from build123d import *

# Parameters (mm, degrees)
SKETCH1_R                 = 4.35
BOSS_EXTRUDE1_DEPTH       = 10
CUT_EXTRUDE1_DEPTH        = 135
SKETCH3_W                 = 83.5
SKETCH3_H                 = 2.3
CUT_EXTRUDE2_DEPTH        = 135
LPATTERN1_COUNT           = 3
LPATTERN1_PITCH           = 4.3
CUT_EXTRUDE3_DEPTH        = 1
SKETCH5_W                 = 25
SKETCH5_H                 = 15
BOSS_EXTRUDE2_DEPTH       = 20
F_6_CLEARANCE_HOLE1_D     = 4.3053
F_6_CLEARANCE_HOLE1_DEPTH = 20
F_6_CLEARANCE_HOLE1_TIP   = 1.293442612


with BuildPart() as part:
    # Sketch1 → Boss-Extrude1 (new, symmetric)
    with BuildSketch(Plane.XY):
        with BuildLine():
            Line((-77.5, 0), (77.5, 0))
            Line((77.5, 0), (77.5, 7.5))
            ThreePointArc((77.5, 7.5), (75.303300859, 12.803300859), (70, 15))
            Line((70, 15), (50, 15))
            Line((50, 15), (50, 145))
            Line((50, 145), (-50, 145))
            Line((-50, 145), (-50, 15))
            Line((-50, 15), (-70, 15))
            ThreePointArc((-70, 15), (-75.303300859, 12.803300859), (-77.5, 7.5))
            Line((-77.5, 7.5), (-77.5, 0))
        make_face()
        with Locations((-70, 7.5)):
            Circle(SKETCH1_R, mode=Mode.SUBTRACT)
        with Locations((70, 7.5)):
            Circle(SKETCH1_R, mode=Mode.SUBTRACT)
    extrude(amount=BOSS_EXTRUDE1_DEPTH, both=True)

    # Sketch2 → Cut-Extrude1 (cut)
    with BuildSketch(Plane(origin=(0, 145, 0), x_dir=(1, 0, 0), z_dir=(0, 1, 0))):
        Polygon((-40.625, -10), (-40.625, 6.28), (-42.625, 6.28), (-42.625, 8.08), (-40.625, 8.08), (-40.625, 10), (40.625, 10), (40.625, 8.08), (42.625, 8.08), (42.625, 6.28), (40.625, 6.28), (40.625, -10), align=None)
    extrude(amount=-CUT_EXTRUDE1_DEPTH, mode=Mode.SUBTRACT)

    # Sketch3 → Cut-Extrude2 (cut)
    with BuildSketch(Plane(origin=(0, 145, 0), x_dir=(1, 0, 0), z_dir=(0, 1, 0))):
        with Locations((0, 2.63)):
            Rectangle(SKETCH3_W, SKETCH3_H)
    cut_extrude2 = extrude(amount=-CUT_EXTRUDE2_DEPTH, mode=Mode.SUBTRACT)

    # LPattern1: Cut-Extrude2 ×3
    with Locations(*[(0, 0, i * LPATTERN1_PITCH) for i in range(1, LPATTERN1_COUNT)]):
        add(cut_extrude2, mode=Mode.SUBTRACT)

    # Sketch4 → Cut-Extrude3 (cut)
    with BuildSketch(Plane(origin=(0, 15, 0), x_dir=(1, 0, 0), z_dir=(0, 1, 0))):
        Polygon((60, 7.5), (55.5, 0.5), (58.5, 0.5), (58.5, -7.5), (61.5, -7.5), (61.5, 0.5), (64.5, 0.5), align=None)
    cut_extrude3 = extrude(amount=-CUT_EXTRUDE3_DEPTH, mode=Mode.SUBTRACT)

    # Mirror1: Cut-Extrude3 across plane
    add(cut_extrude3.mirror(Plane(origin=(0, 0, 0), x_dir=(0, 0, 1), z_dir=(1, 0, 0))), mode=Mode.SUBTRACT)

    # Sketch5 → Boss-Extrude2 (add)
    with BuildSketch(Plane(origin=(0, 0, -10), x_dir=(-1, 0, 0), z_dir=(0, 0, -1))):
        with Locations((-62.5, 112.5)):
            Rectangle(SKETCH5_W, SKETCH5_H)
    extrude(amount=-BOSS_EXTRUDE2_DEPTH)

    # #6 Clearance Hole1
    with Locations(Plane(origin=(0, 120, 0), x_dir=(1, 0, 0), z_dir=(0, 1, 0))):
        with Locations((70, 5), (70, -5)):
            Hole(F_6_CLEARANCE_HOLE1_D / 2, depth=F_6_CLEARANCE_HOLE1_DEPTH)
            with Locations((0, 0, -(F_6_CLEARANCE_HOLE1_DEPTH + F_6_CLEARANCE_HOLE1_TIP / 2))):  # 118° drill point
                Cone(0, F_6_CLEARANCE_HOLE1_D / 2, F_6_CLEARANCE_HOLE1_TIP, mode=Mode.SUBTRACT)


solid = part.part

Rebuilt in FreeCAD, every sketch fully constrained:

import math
import FreeCAD as App
import Part
import Sketcher
from FreeCAD import Vector


def add_polygon(sketch, points):
    """Adds a closed chain of lines whose ends are joined by coincident constraints."""
    first, n = sketch.GeometryCount, len(points)
    for a, b in zip(points, points[1:] + points[:1]):
        sketch.addGeometry(Part.LineSegment(App.Vector(*a, 0), App.Vector(*b, 0)), False)
    for i in range(n):
        sketch.addConstraint(Sketcher.Constraint("Coincident", first + i, 2, first + (i + 1) % n, 1))

doc = App.newDocument("Part")
params = doc.addObject("Spreadsheet::Sheet", "Params")
for row, (alias, value) in enumerate([
    ("sketch1_diameter", "8.7 mm"),
    ("sketch1_radius", "7.5 mm"),
    ("sketch1_width", "155 mm"),
    ("sketch1_width2", "20 mm"),
    ("sketch1_height", "130 mm"),
    ("pad1_length", "20 mm"),
    ("sketch2_width", "2 mm"),
    ("sketch2_height", "1.8 mm"),
    ("sketch2_width2", "81.25 mm"),
    ("sketch2_height2", "16.28 mm"),
    ("pocket1_length", "135 mm"),
    ("sketch3_width", "83.5 mm"),
    ("sketch3_height", "2.3 mm"),
    ("pocket2_length", "135 mm"),
    ("linearpattern_pitch", "4.3 mm"),
    ("sketch4_width", "3 mm"),
    ("sketch4_height", "8 mm"),
    ("pocket3_length", "1 mm"),
    ("sketch5_width", "25 mm"),
    ("sketch5_height", "15 mm"),
    ("pad2_length", "20 mm"),
    ("hole_diameter", "4.3053 mm"),
    ("hole_depth", "20 mm"),
], start=1):
    params.set(f"A{row}", alias)
    params.set(f"B{row}", "=" + value)
    params.setAlias(f"B{row}", alias)

body = doc.addObject("PartDesign::Body", "Body")

sketch1 = body.newObject("Sketcher::SketchObject", "Sketch")
sketch1.AttachmentSupport = (doc.getObject("XY_Plane"), [""])
sketch1.MapMode = "FlatFace"
sketch1.addGeometry([
    Part.LineSegment(Vector(-77.5, 0, 0), Vector(77.5, 0, 0)),
    Part.LineSegment(Vector(77.5, 0, 0), Vector(77.5, 7.5, 0)),
    Part.ArcOfCircle(Part.Circle(Vector(70, 7.5, 0), Vector(0, 0, 1), 7.5), math.radians(0), math.radians(90)),
    Part.LineSegment(Vector(70, 15, 0), Vector(50, 15, 0)),
    Part.LineSegment(Vector(50, 15, 0), Vector(50, 145, 0)),
    Part.LineSegment(Vector(50, 145, 0), Vector(-50, 145, 0)),
    Part.LineSegment(Vector(-50, 145, 0), Vector(-50, 15, 0)),
    Part.LineSegment(Vector(-50, 15, 0), Vector(-70, 15, 0)),
    Part.ArcOfCircle(Part.Circle(Vector(-70, 7.5, 0), Vector(0, 0, 1), 7.5), math.radians(90), math.radians(180)),
    Part.LineSegment(Vector(-77.5, 7.5, 0), Vector(-77.5, 0, 0)),
    Part.Circle(Vector(-70, 7.5, 0), Vector(0, 0, 1), 4.3),
    Part.Circle(Vector(70, 7.5, 0), Vector(0, 0, 1), 4.3),
], False)
sketch1.addConstraint([
    Sketcher.Constraint("Coincident", 0, 2, 1, 1),
    Sketcher.Constraint("Tangent", 1, 2, 2, 1),
    Sketcher.Constraint("Tangent", 2, 2, 3, 1),
    Sketcher.Constraint("Coincident", 3, 2, 4, 1),
    Sketcher.Constraint("Coincident", 4, 2, 5, 1),
    Sketcher.Constraint("Coincident", 5, 2, 6, 1),
    Sketcher.Constraint("Coincident", 6, 2, 7, 1),
    Sketcher.Constraint("Tangent", 7, 2, 8, 1),
    Sketcher.Constraint("Tangent", 8, 2, 9, 1),
    Sketcher.Constraint("Coincident", 9, 2, 0, 1),
    Sketcher.Constraint("Horizontal", 0),
    Sketcher.Constraint("Vertical", 1),
    Sketcher.Constraint("Horizontal", 3),
    Sketcher.Constraint("Vertical", 4),
    Sketcher.Constraint("Horizontal", 5),
    Sketcher.Constraint("Vertical", 6),
    Sketcher.Constraint("Horizontal", 7),
    Sketcher.Constraint("Vertical", 9),
    Sketcher.Constraint("Coincident", 10, 3, 8, 3),
    Sketcher.Constraint("Coincident", 11, 3, 2, 3),
    Sketcher.Constraint("Equal", 2, 8),
    Sketcher.Constraint("Equal", 10, 11),
    Sketcher.Constraint("Symmetric", 0, 2, 9, 2, -1, 1),
    Sketcher.Constraint("Symmetric", 3, 2, 6, 2, -2),
    Sketcher.Constraint("Diameter", 10, 8.7),
    Sketcher.Constraint("Radius", 2, 7.5),
    Sketcher.Constraint("DistanceX", 0, 1, 0, 2, 155.0),
    Sketcher.Constraint("DistanceX", 3, 2, 3, 1, 20.0),
    Sketcher.Constraint("DistanceY", 4, 1, 4, 2, 130.0),
    Sketcher.Constraint("DistanceY", 1, 1, 1, 2, 7.5),
])
sketch1.setExpression("Constraints[24]", "Params.sketch1_diameter")
sketch1.setExpression("Constraints[25]", "Params.sketch1_radius")
sketch1.setExpression("Constraints[26]", "Params.sketch1_width")
sketch1.setExpression("Constraints[27]", "Params.sketch1_width2")
sketch1.setExpression("Constraints[28]", "Params.sketch1_height")
pad1 = body.newObject("PartDesign::Pad", "Pad")
pad1.Profile = sketch1
pad1.setExpression("Length", "Params.pad1_length")
pad1.Midplane = True

sketch2 = body.newObject("Sketcher::SketchObject", "Sketch001")
sketch2.AttachmentSupport = (doc.getObject("XZ_Plane"), [""])
sketch2.MapMode = "FlatFace"
sketch2.AttachmentOffset = App.Placement(Vector(0, 0, -145), App.Rotation())
add_polygon(sketch2, [(-40.6, -6.3), (-40.6, 10), (40.6, 10), (40.6, -6.3), (42.6, -6.3), (42.6, -8.1), (40.6, -8.1), (40.6, -10), (-40.6, -10), (-40.6, -8.1), (-42.6, -8.1), (-42.6, -6.3)])
sketch2.addConstraint([
    Sketcher.Constraint("Vertical", 0),
    Sketcher.Constraint("Horizontal", 1),
    Sketcher.Constraint("Vertical", 2),
    Sketcher.Constraint("Horizontal", 3),
    Sketcher.Constraint("Vertical", 4),
    Sketcher.Constraint("Horizontal", 5),
    Sketcher.Constraint("Vertical", 6),
    Sketcher.Constraint("Horizontal", 7),
    Sketcher.Constraint("Vertical", 8),
    Sketcher.Constraint("Horizontal", 9),
    Sketcher.Constraint("Vertical", 10),
    Sketcher.Constraint("Horizontal", 11),
    Sketcher.Constraint("Symmetric", 0, 2, 6, 2, -1, 1),
    Sketcher.Constraint("Symmetric", 5, 2, 8, 2, -2),
    Sketcher.Constraint("Symmetric", 3, 2, 10, 2, -2),
    Sketcher.Constraint("Vertical", 2, 2, 5, 2),
    Sketcher.Constraint("DistanceX", 3, 1, 3, 2, 2.0),
    Sketcher.Constraint("DistanceY", 4, 2, 4, 1, 1.8),
    Sketcher.Constraint("DistanceY", -1, 1, 0, 2, 10.0),
    Sketcher.Constraint("DistanceX", 1, 1, 1, 2, 81.25),
    Sketcher.Constraint("DistanceY", 0, 1, 0, 2, 16.28),
])
sketch2.setExpression("Constraints[28]", "Params.sketch2_width")
sketch2.setExpression("Constraints[29]", "Params.sketch2_height")
sketch2.setExpression("Constraints[31]", "Params.sketch2_width2")
sketch2.setExpression("Constraints[32]", "Params.sketch2_height2")
pocket1 = body.newObject("PartDesign::Pocket", "Pocket")
pocket1.Profile = sketch2
pocket1.setExpression("Length", "Params.pocket1_length")
pocket1.Reversed = True

sketch3 = body.newObject("Sketcher::SketchObject", "Sketch002")
sketch3.AttachmentSupport = (doc.getObject("XZ_Plane"), [""])
sketch3.MapMode = "FlatFace"
sketch3.AttachmentOffset = App.Placement(Vector(0, 0, -145), App.Rotation())
add_polygon(sketch3, [(-41.8, -3.8), (-41.8, -1.5), (41.8, -1.5), (41.8, -3.8)])
sketch3.addConstraint([
    Sketcher.Constraint("Vertical", 0),
    Sketcher.Constraint("Horizontal", 1),
    Sketcher.Constraint("Vertical", 2),
    Sketcher.Constraint("Horizontal", 3),
    Sketcher.Constraint("DistanceX", 1, 1, 1, 2, 83.5),
    Sketcher.Constraint("DistanceY", 0, 1, 0, 2, 2.3),
    Sketcher.Constraint("DistanceX", 0, 2, -1, 1, 41.75),
    Sketcher.Constraint("DistanceY", 0, 2, -1, 1, 1.48),
])
sketch3.setExpression("Constraints[8]", "Params.sketch3_width")
sketch3.setExpression("Constraints[9]", "Params.sketch3_height")
pocket2 = body.newObject("PartDesign::Pocket", "Pocket001")
pocket2.Profile = sketch3
pocket2.setExpression("Length", "Params.pocket2_length")
pocket2.Reversed = True
doc.recompute()

linearpattern = body.newObject("PartDesign::LinearPattern", "LinearPattern")
linearpattern.Originals = [pocket2]
linearpattern.Direction = (doc.getObject("Z_Axis"), [""])
linearpattern.Mode = "offset"
linearpattern.setExpression("Offset", "Params.linearpattern_pitch")
linearpattern.Occurrences = 3
body.Tip = linearpattern

sketch4 = body.newObject("Sketcher::SketchObject", "Sketch003")
sketch4.AttachmentSupport = (doc.getObject("XZ_Plane"), [""])
sketch4.MapMode = "FlatFace"
sketch4.AttachmentOffset = App.Placement(Vector(0, 0, -15), App.Rotation())
add_polygon(sketch4, [(60, -7.5), (55.5, -0.5), (58.5, -0.5), (58.5, 7.5), (61.5, 7.5), (61.5, -0.5), (64.5, -0.5)])
sketch4.addConstraint([
    Sketcher.Constraint("Horizontal", 1),
    Sketcher.Constraint("Vertical", 2),
    Sketcher.Constraint("Horizontal", 3),
    Sketcher.Constraint("Vertical", 4),
    Sketcher.Constraint("Horizontal", 5),
    Sketcher.Constraint("Horizontal", 1, 2, 4, 2),
    Sketcher.Constraint("Equal", 1, 3),
    Sketcher.Constraint("Equal", 3, 5),
    Sketcher.Constraint("Equal", 0, 6),
    Sketcher.Constraint("DistanceX", 1, 1, 1, 2, 3.0),
    Sketcher.Constraint("DistanceY", 2, 1, 2, 2, 8.0),
    Sketcher.Constraint("DistanceX", -1, 1, 6, 2, 60.0),
    Sketcher.Constraint("DistanceY", 6, 2, 1, 2, 7.0),
    Sketcher.Constraint("DistanceY", 0, 2, -1, 1, 0.5),
])
sketch4.setExpression("Constraints[16]", "Params.sketch4_width")
sketch4.setExpression("Constraints[17]", "Params.sketch4_height")
pocket3 = body.newObject("PartDesign::Pocket", "Pocket002")
pocket3.Profile = sketch4
pocket3.setExpression("Length", "Params.pocket3_length")
pocket3.Reversed = True
doc.recompute()

mirrored = body.newObject("PartDesign::Mirrored", "Mirrored")
mirrored.Originals = [pocket3]
mirrored.MirrorPlane = (doc.getObject("YZ_Plane"), [""])
body.Tip = mirrored

sketch5 = body.newObject("Sketcher::SketchObject", "Sketch004")
sketch5.AttachmentSupport = (doc.getObject("XY_Plane"), [""])
sketch5.MapMode = "FlatFace"
sketch5.AttachmentOffset = App.Placement(Vector(0, 0, -10), App.Rotation())
add_polygon(sketch5, [(75, 120), (75, 105), (50, 105), (50, 120)])
sketch5.addConstraint([
    Sketcher.Constraint("Vertical", 0),
    Sketcher.Constraint("Horizontal", 1),
    Sketcher.Constraint("Vertical", 2),
    Sketcher.Constraint("Horizontal", 3),
    Sketcher.Constraint("DistanceX", 1, 2, 1, 1, 25.0),
    Sketcher.Constraint("DistanceY", 0, 2, 0, 1, 15.0),
    Sketcher.Constraint("DistanceX", -1, 1, 0, 2, 75.0),
    Sketcher.Constraint("DistanceY", -1, 1, 0, 2, 105.0),
])
sketch5.setExpression("Constraints[8]", "Params.sketch5_width")
sketch5.setExpression("Constraints[9]", "Params.sketch5_height")
pad2 = body.newObject("PartDesign::Pad", "Pad001")
pad2.Profile = sketch5
pad2.setExpression("Length", "Params.pad2_length")

sketch6 = body.newObject("Sketcher::SketchObject", "Sketch005")
sketch6.AttachmentSupport = (doc.getObject("XZ_Plane"), [""])
sketch6.MapMode = "FlatFace"
sketch6.AttachmentOffset = App.Placement(Vector(0, 0, -120), App.Rotation())
sketch6.addGeometry([
    Part.Circle(Vector(70, -5, 0), Vector(0, 0, 1), 2.2),
    Part.Circle(Vector(70, 5, 0), Vector(0, 0, 1), 2.2),
], False)
sketch6.addConstraint([
    Sketcher.Constraint("Equal", 0, 1),
    Sketcher.Constraint("Symmetric", 0, 3, 1, 3, -1),
    Sketcher.Constraint("DistanceX", -1, 1, 0, 3, 70.0),
    Sketcher.Constraint("DistanceY", 0, 3, -1, 1, 5.0),
    Sketcher.Constraint("Diameter", 0, 4.3053),
])
doc.recompute()
hole = body.newObject("PartDesign::Hole", "Hole")
hole.Profile = sketch6
hole.ThreadType = "None"
hole.setExpression("Diameter", "Params.hole_diameter")
hole.DepthType = "Dimension"
hole.setExpression("Depth", "Params.hole_depth")
hole.DrillPoint = "Angled"
hole.DrillPointAngle = 118
hole.Reversed = True

doc.recompute()
